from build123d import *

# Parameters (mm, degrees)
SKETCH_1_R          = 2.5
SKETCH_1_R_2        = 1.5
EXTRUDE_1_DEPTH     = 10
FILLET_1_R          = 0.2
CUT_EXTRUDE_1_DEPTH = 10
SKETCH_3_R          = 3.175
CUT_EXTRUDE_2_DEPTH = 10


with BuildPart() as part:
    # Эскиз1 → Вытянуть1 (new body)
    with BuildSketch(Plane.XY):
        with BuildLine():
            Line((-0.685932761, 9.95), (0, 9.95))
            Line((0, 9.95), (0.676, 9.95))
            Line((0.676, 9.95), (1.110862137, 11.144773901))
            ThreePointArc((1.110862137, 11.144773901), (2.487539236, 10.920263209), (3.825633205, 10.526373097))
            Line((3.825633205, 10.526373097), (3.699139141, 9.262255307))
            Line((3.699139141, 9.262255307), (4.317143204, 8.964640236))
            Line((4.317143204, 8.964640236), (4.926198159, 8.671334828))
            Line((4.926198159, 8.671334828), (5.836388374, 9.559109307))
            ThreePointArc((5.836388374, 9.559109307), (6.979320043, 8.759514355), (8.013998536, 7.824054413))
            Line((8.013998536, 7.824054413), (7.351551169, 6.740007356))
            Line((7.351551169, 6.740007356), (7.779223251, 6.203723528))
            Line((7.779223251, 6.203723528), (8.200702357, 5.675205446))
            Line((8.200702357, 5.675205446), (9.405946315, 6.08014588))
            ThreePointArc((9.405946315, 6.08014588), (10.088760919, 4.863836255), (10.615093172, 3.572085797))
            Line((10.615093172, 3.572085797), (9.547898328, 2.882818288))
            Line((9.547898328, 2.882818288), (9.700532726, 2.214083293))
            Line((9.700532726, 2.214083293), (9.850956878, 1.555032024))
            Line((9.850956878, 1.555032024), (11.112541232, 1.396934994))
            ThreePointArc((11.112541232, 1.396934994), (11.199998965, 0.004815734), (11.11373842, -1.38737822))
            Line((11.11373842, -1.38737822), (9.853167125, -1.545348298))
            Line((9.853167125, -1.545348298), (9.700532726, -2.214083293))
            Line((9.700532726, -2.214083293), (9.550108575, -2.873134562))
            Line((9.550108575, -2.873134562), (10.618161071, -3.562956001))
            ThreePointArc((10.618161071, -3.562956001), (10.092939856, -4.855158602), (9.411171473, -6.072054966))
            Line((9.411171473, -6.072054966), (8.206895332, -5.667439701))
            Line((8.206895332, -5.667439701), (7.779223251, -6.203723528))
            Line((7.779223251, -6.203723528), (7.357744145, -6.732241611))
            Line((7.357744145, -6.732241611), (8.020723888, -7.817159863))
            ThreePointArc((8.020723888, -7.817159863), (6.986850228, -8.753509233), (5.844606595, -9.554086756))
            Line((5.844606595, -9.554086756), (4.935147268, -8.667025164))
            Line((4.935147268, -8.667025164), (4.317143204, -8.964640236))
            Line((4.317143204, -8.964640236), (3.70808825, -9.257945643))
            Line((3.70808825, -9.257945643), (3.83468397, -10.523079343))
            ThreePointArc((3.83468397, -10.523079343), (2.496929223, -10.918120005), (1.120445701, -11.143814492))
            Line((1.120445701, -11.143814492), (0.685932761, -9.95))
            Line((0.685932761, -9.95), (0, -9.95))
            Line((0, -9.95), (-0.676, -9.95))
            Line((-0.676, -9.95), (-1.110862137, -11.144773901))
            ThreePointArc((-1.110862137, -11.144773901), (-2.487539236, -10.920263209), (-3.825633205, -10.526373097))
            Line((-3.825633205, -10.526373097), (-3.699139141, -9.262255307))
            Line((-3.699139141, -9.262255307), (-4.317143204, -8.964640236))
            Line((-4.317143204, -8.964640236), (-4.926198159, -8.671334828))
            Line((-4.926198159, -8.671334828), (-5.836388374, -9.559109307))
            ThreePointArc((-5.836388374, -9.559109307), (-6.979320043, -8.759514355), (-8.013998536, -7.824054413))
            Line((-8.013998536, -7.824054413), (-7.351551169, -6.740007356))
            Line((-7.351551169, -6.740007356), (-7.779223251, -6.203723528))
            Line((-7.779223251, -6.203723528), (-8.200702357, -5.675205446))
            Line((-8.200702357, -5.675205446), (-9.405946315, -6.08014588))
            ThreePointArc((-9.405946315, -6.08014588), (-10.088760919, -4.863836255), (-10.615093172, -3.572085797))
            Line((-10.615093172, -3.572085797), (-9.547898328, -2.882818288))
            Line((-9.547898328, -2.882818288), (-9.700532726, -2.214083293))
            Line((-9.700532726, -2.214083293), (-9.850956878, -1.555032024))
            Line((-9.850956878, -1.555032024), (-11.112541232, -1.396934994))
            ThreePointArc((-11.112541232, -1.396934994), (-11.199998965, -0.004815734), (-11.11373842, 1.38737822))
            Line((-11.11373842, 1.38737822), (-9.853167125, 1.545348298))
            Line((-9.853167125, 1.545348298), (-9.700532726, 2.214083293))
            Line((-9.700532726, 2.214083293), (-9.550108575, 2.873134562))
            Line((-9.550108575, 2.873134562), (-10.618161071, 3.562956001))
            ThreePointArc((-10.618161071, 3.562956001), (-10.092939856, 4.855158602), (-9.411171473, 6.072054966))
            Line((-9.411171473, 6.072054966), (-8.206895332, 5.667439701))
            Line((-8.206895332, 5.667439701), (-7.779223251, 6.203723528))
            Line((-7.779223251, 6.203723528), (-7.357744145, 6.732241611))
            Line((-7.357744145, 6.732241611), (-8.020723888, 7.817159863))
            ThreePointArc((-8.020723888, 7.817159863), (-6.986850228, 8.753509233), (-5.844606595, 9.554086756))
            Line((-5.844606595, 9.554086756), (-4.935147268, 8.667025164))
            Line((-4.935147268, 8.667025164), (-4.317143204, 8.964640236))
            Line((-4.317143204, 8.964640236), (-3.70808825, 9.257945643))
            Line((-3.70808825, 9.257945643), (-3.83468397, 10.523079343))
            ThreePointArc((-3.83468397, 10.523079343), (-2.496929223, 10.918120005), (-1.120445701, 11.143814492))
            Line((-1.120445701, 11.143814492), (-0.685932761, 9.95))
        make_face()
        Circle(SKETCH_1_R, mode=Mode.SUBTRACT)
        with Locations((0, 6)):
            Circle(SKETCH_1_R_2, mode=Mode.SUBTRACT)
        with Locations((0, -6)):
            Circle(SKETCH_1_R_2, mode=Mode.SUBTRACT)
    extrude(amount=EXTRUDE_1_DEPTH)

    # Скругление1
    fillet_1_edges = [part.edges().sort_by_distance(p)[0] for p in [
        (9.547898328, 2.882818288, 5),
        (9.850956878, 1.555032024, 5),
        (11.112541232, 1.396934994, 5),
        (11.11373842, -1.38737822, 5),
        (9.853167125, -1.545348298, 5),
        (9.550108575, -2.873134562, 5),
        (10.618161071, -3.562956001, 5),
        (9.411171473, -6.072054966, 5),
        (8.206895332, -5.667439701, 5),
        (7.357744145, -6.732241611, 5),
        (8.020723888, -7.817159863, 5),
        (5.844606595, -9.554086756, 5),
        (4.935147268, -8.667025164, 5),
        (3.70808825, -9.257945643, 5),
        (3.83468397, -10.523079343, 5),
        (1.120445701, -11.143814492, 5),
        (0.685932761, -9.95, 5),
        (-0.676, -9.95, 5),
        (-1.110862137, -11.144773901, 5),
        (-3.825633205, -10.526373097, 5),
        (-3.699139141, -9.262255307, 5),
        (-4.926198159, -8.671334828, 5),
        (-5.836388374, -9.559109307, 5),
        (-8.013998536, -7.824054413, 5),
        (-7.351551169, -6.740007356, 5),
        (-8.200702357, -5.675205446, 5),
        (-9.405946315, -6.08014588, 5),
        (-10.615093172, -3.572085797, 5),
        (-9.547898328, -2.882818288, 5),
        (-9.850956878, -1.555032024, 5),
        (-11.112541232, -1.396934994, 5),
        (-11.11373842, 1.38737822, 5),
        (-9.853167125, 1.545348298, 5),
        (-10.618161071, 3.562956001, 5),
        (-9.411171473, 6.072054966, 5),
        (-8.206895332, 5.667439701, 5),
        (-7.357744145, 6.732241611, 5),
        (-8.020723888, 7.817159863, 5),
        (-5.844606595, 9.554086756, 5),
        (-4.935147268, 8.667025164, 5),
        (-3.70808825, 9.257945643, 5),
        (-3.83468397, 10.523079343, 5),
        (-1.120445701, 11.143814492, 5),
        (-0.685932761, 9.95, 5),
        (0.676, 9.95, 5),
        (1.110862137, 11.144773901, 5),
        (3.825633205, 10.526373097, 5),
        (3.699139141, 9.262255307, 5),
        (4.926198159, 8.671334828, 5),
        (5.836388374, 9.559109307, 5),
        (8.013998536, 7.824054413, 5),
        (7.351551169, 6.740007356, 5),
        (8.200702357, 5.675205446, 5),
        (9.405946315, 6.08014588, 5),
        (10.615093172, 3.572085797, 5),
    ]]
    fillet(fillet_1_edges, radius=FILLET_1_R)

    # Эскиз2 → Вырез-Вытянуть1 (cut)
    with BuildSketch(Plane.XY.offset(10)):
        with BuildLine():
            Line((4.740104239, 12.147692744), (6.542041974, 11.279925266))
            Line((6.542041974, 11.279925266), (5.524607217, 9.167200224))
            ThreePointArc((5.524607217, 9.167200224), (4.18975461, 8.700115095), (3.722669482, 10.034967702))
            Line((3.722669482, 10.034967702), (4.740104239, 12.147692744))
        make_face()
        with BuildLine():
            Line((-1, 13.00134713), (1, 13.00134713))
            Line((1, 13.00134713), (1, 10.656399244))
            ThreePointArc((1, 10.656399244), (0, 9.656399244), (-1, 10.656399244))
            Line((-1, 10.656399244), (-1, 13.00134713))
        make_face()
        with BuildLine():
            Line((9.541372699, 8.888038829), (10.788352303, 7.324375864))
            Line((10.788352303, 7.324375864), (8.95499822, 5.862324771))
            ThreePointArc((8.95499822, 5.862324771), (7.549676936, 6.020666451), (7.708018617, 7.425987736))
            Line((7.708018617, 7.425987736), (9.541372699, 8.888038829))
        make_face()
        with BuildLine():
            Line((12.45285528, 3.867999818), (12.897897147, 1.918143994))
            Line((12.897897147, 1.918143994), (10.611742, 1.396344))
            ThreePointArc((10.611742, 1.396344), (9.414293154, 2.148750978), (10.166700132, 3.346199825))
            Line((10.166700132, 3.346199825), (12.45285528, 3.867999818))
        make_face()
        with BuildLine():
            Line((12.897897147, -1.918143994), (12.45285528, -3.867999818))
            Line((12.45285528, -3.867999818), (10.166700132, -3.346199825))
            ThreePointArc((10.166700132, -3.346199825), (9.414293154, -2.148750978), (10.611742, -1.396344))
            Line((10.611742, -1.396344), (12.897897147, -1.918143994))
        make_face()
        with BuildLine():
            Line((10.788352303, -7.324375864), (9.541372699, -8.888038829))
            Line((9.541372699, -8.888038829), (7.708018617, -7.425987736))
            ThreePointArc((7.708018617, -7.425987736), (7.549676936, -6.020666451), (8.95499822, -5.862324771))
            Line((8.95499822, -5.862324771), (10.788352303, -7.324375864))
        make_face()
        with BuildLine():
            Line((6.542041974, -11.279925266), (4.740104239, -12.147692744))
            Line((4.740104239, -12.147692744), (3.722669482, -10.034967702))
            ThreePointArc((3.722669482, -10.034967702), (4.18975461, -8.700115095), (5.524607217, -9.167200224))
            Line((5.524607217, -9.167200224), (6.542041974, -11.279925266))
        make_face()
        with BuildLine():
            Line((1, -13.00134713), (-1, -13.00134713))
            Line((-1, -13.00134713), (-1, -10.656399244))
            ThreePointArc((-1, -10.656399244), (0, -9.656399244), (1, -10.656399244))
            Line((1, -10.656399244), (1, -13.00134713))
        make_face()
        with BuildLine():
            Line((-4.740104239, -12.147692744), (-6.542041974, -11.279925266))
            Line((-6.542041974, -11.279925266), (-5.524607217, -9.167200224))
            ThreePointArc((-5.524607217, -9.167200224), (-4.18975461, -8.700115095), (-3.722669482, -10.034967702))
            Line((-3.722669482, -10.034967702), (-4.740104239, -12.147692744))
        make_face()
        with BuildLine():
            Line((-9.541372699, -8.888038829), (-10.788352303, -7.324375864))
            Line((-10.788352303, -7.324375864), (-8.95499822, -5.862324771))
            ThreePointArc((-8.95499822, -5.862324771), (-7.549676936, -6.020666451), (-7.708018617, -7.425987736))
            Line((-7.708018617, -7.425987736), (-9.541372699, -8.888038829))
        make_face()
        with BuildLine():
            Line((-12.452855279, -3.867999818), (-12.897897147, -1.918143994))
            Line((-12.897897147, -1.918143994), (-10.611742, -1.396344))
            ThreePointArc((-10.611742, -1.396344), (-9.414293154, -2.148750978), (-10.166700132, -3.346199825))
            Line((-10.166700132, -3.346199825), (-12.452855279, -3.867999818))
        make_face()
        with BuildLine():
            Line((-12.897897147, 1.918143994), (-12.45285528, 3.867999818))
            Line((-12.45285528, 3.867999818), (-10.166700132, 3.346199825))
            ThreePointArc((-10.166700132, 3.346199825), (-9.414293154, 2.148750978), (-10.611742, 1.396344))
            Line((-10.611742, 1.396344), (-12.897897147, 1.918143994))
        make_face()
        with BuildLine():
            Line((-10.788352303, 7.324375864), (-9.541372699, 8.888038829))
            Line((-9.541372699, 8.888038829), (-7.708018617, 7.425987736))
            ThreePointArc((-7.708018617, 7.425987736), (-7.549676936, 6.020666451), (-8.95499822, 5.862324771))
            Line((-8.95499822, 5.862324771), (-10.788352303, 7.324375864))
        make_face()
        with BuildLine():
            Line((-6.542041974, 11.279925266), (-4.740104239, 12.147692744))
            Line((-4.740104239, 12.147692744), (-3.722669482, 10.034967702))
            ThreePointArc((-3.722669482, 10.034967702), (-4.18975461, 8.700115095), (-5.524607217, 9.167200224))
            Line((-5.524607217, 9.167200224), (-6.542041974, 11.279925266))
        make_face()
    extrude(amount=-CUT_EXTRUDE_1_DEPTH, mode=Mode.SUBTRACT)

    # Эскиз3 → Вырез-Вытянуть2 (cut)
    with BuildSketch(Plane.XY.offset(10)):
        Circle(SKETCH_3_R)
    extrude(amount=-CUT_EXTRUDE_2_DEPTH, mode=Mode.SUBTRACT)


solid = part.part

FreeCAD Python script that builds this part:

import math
import FreeCAD as App
import Part
import Sketcher
from FreeCAD import Vector
Q = App.Units.Quantity


def edges_at(feature, points):
    """Names of the edges that pass closest to the given points."""
    edges = feature.Shape.Edges
    near = lambda p: min(range(len(edges)), key=lambda i: edges[i].distToShape(Part.Vertex(*p))[0])
    return sorted({f"Edge{near(p) + 1}" for p in points})

doc = App.newDocument("Part")
body = doc.addObject("PartDesign::Body", "Body")

sketch1 = body.newObject("Sketcher::SketchObject", "Sketch")
sketch1.AttachmentSupport = (doc.getObject("XY_Plane"), [""])
sketch1.MapMode = "FlatFace"
sketch1.addGeometry([
    Part.LineSegment(Vector(0.7, 9.9, 0), Vector(-0.7, 9.9, 0)),
    Part.LineSegment(Vector(-0.7, 9.9, 0), Vector(-1.1, 11.1, 0)),
    Part.ArcOfCircle(Part.Circle(Vector(0, 0, 0), Vector(0, 0, 1), 11.2), math.radians(95.74), math.radians(110.02)),
    Part.LineSegment(Vector(-3.8, 10.5, 0), Vector(-3.7, 9.3, 0)),
    Part.LineSegment(Vector(-3.7, 9.3, 0), Vector(-4.3, 9, 0)),
    Part.LineSegment(Vector(-4.3, 9, 0), Vector(-4.9, 8.7, 0)),
    Part.LineSegment(Vector(-4.9, 8.7, 0), Vector(-5.8, 9.6, 0)),
    Part.ArcOfCircle(Part.Circle(Vector(0, 0, 0), Vector(0, 0, 1), 11.2), math.radians(121.46), math.radians(135.74)),
    Part.LineSegment(Vector(-8, 7.8, 0), Vector(-7.4, 6.7, 0)),
    Part.LineSegment(Vector(-7.4, 6.7, 0), Vector(-7.8, 6.2, 0)),
    Part.LineSegment(Vector(-7.8, 6.2, 0), Vector(-8.2, 5.7, 0)),
    Part.LineSegment(Vector(-8.2, 5.7, 0), Vector(-9.4, 6.1, 0)),
    Part.ArcOfCircle(Part.Circle(Vector(0, 0, 0), Vector(0, 0, 1), 11.2), math.radians(147.17), math.radians(161.45)),
    Part.LineSegment(Vector(-10.6, 3.6, 0), Vector(-9.6, 2.9, 0)),
    Part.LineSegment(Vector(-9.6, 2.9, 0), Vector(-9.7, 2.2, 0)),
    Part.LineSegment(Vector(-9.7, 2.2, 0), Vector(-9.9, 1.5, 0)),
    Part.LineSegment(Vector(-9.9, 1.5, 0), Vector(-11.1, 1.4, 0)),
    Part.ArcOfCircle(Part.Circle(Vector(0, 0, 0), Vector(0, 0, 1), 11.2), math.radians(172.88), math.radians(187.16)),
    Part.LineSegment(Vector(-11.1, -1.4, 0), Vector(-9.9, -1.6, 0)),
    Part.LineSegment(Vector(-9.9, -1.6, 0), Vector(-9.7, -2.2, 0)),
    Part.LineSegment(Vector(-9.7, -2.2, 0), Vector(-9.5, -2.9, 0)),
    Part.LineSegment(Vector(-9.5, -2.9, 0), Vector(-10.6, -3.6, 0)),
    Part.ArcOfCircle(Part.Circle(Vector(0, 0, 0), Vector(0, 0, 1), 11.2), math.radians(-161.4), math.radians(-147.12)),
    Part.LineSegment(Vector(-9.4, -6.1, 0), Vector(-8.2, -5.7, 0)),
    Part.LineSegment(Vector(-8.2, -5.7, 0), Vector(-7.8, -6.2, 0)),
    Part.LineSegment(Vector(-7.8, -6.2, 0), Vector(-7.4, -6.7, 0)),
    Part.LineSegment(Vector(-7.4, -6.7, 0), Vector(-8, -7.8, 0)),
    Part.ArcOfCircle(Part.Circle(Vector(0, 0, 0), Vector(0, 0, 1), 11.2), math.radians(-135.69), math.radians(-121.41)),
    Part.LineSegment(Vector(-5.8, -9.6, 0), Vector(-4.9, -8.7, 0)),
    Part.LineSegment(Vector(-4.9, -8.7, 0), Vector(-4.3, -9, 0)),
    Part.LineSegment(Vector(-4.3, -9, 0), Vector(-3.7, -9.3, 0)),
    Part.LineSegment(Vector(-3.7, -9.3, 0), Vector(-3.8, -10.5, 0)),
    Part.ArcOfCircle(Part.Circle(Vector(0, 0, 0), Vector(0, 0, 1), 11.2), math.radians(-109.97), math.radians(-95.69)),
    Part.LineSegment(Vector(-1.1, -11.1, 0), Vector(-0.7, -9.9, 0)),
    Part.LineSegment(Vector(-0.7, -9.9, 0), Vector(0.7, -9.9, 0)),
    Part.LineSegment(Vector(0.7, -9.9, 0), Vector(1.1, -11.1, 0)),
    Part.ArcOfCircle(Part.Circle(Vector(0, 0, 0), Vector(0, 0, 1), 11.2), math.radians(-84.26), math.radians(-69.98)),
    Part.LineSegment(Vector(3.8, -10.5, 0), Vector(3.7, -9.3, 0)),
    Part.LineSegment(Vector(3.7, -9.3, 0), Vector(4.3, -9, 0)),
    Part.LineSegment(Vector(4.3, -9, 0), Vector(4.9, -8.7, 0)),
    Part.LineSegment(Vector(4.9, -8.7, 0), Vector(5.8, -9.6, 0)),
    Part.ArcOfCircle(Part.Circle(Vector(0, 0, 0), Vector(0, 0, 1), 11.2), math.radians(-58.54), math.radians(-44.26)),
    Part.LineSegment(Vector(8, -7.8, 0), Vector(7.4, -6.7, 0)),
    Part.LineSegment(Vector(7.4, -6.7, 0), Vector(7.8, -6.2, 0)),
    Part.LineSegment(Vector(7.8, -6.2, 0), Vector(8.2, -5.7, 0)),
    Part.LineSegment(Vector(8.2, -5.7, 0), Vector(9.4, -6.1, 0)),
    Part.ArcOfCircle(Part.Circle(Vector(0, 0, 0), Vector(0, 0, 1), 11.2), math.radians(-32.83), math.radians(-18.55)),
    Part.LineSegment(Vector(10.6, -3.6, 0), Vector(9.6, -2.9, 0)),
    Part.LineSegment(Vector(9.6, -2.9, 0), Vector(9.7, -2.2, 0)),
    Part.LineSegment(Vector(9.7, -2.2, 0), Vector(9.9, -1.5, 0)),
    Part.LineSegment(Vector(9.9, -1.5, 0), Vector(11.1, -1.4, 0)),
    Part.ArcOfCircle(Part.Circle(Vector(0, 0, 0), Vector(0, 0, 1), 11.2), math.radians(-7.12), math.radians(7.16)),
    Part.LineSegment(Vector(11.1, 1.4, 0), Vector(9.9, 1.6, 0)),
    Part.LineSegment(Vector(9.9, 1.6, 0), Vector(9.7, 2.2, 0)),
    Part.LineSegment(Vector(9.7, 2.2, 0), Vector(9.5, 2.9, 0)),
    Part.LineSegment(Vector(9.5, 2.9, 0), Vector(10.6, 3.6, 0)),
    Part.ArcOfCircle(Part.Circle(Vector(0, 0, 0), Vector(0, 0, 1), 11.2), math.radians(18.6), math.radians(32.88)),
    Part.LineSegment(Vector(9.4, 6.1, 0), Vector(8.2, 5.7, 0)),
    Part.LineSegment(Vector(8.2, 5.7, 0), Vector(7.8, 6.2, 0)),
    Part.LineSegment(Vector(7.8, 6.2, 0), Vector(7.4, 6.7, 0)),
    Part.LineSegment(Vector(7.4, 6.7, 0), Vector(8, 7.8, 0)),
    Part.ArcOfCircle(Part.Circle(Vector(0, 0, 0), Vector(0, 0, 1), 11.2), math.radians(44.31), math.radians(58.59)),
    Part.LineSegment(Vector(5.8, 9.6, 0), Vector(4.9, 8.7, 0)),
    Part.LineSegment(Vector(4.9, 8.7, 0), Vector(4.3, 9, 0)),
    Part.LineSegment(Vector(4.3, 9, 0), Vector(3.7, 9.3, 0)),
    Part.LineSegment(Vector(3.7, 9.3, 0), Vector(3.8, 10.5, 0)),
    Part.ArcOfCircle(Part.Circle(Vector(0, 0, 0), Vector(0, 0, 1), 11.2), math.radians(70.03), math.radians(84.31)),
    Part.LineSegment(Vector(1.1, 11.1, 0), Vector(0.7, 9.9, 0)),
    Part.Circle(Vector(0, -6, 0), Vector(0, 0, 1), 1.5),
    Part.Circle(Vector(0, 0, 0), Vector(0, 0, 1), 2.5),
    Part.Circle(Vector(0, 6, 0), Vector(0, 0, 1), 1.5),
], False)
sketch1.addConstraint([
    Sketcher.Constraint("Coincident", 0, 2, 1, 1),
    Sketcher.Constraint("Coincident", 1, 2, 2, 1),
    Sketcher.Constraint("Coincident", 2, 2, 3, 1),
    Sketcher.Constraint("Coincident", 3, 2, 4, 1),
    Sketcher.Constraint("Coincident", 4, 2, 5, 1),
    Sketcher.Constraint("Coincident", 5, 2, 6, 1),
    Sketcher.Constraint("Coincident", 6, 2, 7, 1),
    Sketcher.Constraint("Coincident", 7, 2, 8, 1),
    Sketcher.Constraint("Coincident", 8, 2, 9, 1),
    Sketcher.Constraint("Coincident", 9, 2, 10, 1),
    Sketcher.Constraint("Coincident", 10, 2, 11, 1),
    Sketcher.Constraint("Coincident", 11, 2, 12, 1),
    Sketcher.Constraint("Coincident", 12, 2, 13, 1),
    Sketcher.Constraint("Coincident", 13, 2, 14, 1),
    Sketcher.Constraint("Coincident", 14, 2, 15, 1),
    Sketcher.Constraint("Coincident", 15, 2, 16, 1),
    Sketcher.Constraint("Coincident", 16, 2, 17, 1),
    Sketcher.Constraint("Coincident", 17, 2, 18, 1),
    Sketcher.Constraint("Coincident", 18, 2, 19, 1),
    Sketcher.Constraint("Coincident", 19, 2, 20, 1),
    Sketcher.Constraint("Coincident", 20, 2, 21, 1),
    Sketcher.Constraint("Coincident", 21, 2, 22, 1),
    Sketcher.Constraint("Coincident", 22, 2, 23, 1),
    Sketcher.Constraint("Coincident", 23, 2, 24, 1),
    Sketcher.Constraint("Coincident", 24, 2, 25, 1),
    Sketcher.Constraint("Coincident", 25, 2, 26, 1),
    Sketcher.Constraint("Coincident", 26, 2, 27, 1),
    Sketcher.Constraint("Coincident", 27, 2, 28, 1),
    Sketcher.Constraint("Coincident", 28, 2, 29, 1),
    Sketcher.Constraint("Coincident", 29, 2, 30, 1),
    Sketcher.Constraint("Coincident", 30, 2, 31, 1),
    Sketcher.Constraint("Coincident", 31, 2, 32, 1),
    Sketcher.Constraint("Coincident", 32, 2, 33, 1),
    Sketcher.Constraint("Coincident", 33, 2, 34, 1),
    Sketcher.Constraint("Coincident", 34, 2, 35, 1),
    Sketcher.Constraint("Coincident", 35, 2, 36, 1),
    Sketcher.Constraint("Coincident", 36, 2, 37, 1),
    Sketcher.Constraint("Coincident", 37, 2, 38, 1),
    Sketcher.Constraint("Coincident", 38, 2, 39, 1),
    Sketcher.Constraint("Coincident", 39, 2, 40, 1),
    Sketcher.Constraint("Coincident", 40, 2, 41, 1),
    Sketcher.Constraint("Coincident", 41, 2, 42, 1),
    Sketcher.Constraint("Coincident", 42, 2, 43, 1),
    Sketcher.Constraint("Coincident", 43, 2, 44, 1),
    Sketcher.Constraint("Coincident", 44, 2, 45, 1),
    Sketcher.Constraint("Coincident", 45, 2, 46, 1),
    Sketcher.Constraint("Coincident", 46, 2, 47, 1),
    Sketcher.Constraint("Coincident", 47, 2, 48, 1),
    Sketcher.Constraint("Coincident", 48, 2, 49, 1),
    Sketcher.Constraint("Coincident", 49, 2, 50, 1),
    Sketcher.Constraint("Coincident", 50, 2, 51, 1),
    Sketcher.Constraint("Coincident", 51, 2, 52, 1),
    Sketcher.Constraint("Coincident", 52, 2, 53, 1),
    Sketcher.Constraint("Coincident", 53, 2, 54, 1),
    Sketcher.Constraint("Coincident", 54, 2, 55, 1),
    Sketcher.Constraint("Coincident", 55, 2, 56, 1),
    Sketcher.Constraint("Coincident", 56, 2, 57, 1),
    Sketcher.Constraint("Coincident", 57, 2, 58, 1),
    Sketcher.Constraint("Coincident", 58, 2, 59, 1),
    Sketcher.Constraint("Coincident", 59, 2, 60, 1),
    Sketcher.Constraint("Coincident", 60, 2, 61, 1),
    Sketcher.Constraint("Coincident", 61, 2, 62, 1),
    Sketcher.Constraint("Coincident", 62, 2, 63, 1),
    Sketcher.Constraint("Coincident", 63, 2, 64, 1),
    Sketcher.Constraint("Coincident", 64, 2, 65, 1),
    Sketcher.Constraint("Coincident", 65, 2, 66, 1),
    Sketcher.Constraint("Coincident", 66, 2, 67, 1),
    Sketcher.Constraint("Coincident", 67, 2, 0, 1),
    Sketcher.Constraint("Horizontal", 0),
    Sketcher.Constraint("Horizontal", 34),
    Sketcher.Constraint("Coincident", 2, 3, -1, 1),
    Sketcher.Constraint("Coincident", 7, 3, -1, 1),
    Sketcher.Constraint("Coincident", 12, 3, -1, 1),
    Sketcher.Constraint("Coincident", 17, 3, -1, 1),
    Sketcher.Constraint("Coincident", 22, 3, -1, 1),
    Sketcher.Constraint("Coincident", 27, 3, -1, 1),
    Sketcher.Constraint("Coincident", 32, 3, -1, 1),
    Sketcher.Constraint("Coincident", 36, 3, -1, 1),
    Sketcher.Constraint("Coincident", 41, 3, -1, 1),
    Sketcher.Constraint("Coincident", 46, 3, -1, 1),
    Sketcher.Constraint("Coincident", 51, 3, -1, 1),
    Sketcher.Constraint("Coincident", 56, 3, -1, 1),
    Sketcher.Constraint("Coincident", 61, 3, -1, 1),
    Sketcher.Constraint("Coincident", 66, 3, -1, 1),
    Sketcher.Constraint("Coincident", 69, 3, -1, 1),
    Sketcher.Constraint("Equal", 2, 7),
    Sketcher.Constraint("Equal", 7, 12),
    Sketcher.Constraint("Equal", 12, 17),
    Sketcher.Constraint("Equal", 17, 22),
    Sketcher.Constraint("Equal", 22, 27),
    Sketcher.Constraint("Equal", 27, 32),
    Sketcher.Constraint("Equal", 32, 36),
    Sketcher.Constraint("Equal", 36, 41),
    Sketcher.Constraint("Equal", 41, 46),
    Sketcher.Constraint("Equal", 46, 51),
    Sketcher.Constraint("Equal", 51, 56),
    Sketcher.Constraint("Equal", 56, 61),
    Sketcher.Constraint("Equal", 61, 66),
    Sketcher.Constraint("Equal", 68, 70),
    Sketcher.Constraint("Symmetric", 68, 3, 70, 3, -1, 1),
    Sketcher.Constraint("Symmetric", 0, 2, 34, 2, -1, 1),
    Sketcher.Constraint("Symmetric", 3, 2, 37, 2, -1, 1),
    Sketcher.Constraint("Symmetric", 4, 2, 38, 2, -1, 1),
    Sketcher.Constraint("Symmetric", 5, 2, 39, 2, -1, 1),
    Sketcher.Constraint("Symmetric", 8, 2, 42, 2, -1, 1),
    Sketcher.Constraint("Symmetric", 9, 2, 43, 2, -1, 1),
    Sketcher.Constraint("Symmetric", 10, 2, 44, 2, -1, 1),
    Sketcher.Constraint("Symmetric", 13, 2, 47, 2, -1, 1),
    Sketcher.Constraint("Symmetric", 14, 2, 48, 2, -1, 1),
    Sketcher.Constraint("Symmetric", 15, 2, 49, 2, -1, 1),
    Sketcher.Constraint("Symmetric", 18, 2, 52, 2, -1, 1),
    Sketcher.Constraint("Symmetric", 19, 2, 53, 2, -1, 1),
    Sketcher.Constraint("Symmetric", 20, 2, 54, 2, -1, 1),
    Sketcher.Constraint("Symmetric", 23, 2, 57, 2, -1, 1),
    Sketcher.Constraint("Symmetric", 24, 2, 58, 2, -1, 1),
    Sketcher.Constraint("Symmetric", 25, 2, 59, 2, -1, 1),
    Sketcher.Constraint("Symmetric", 28, 2, 62, 2, -1, 1),
    Sketcher.Constraint("Symmetric", 29, 2, 63, 2, -1, 1),
    Sketcher.Constraint("Symmetric", 30, 2, 64, 2, -1, 1),
    Sketcher.Constraint("Symmetric", 29, 2, 38, 2, -2),
    Sketcher.Constraint("Symmetric", 24, 2, 43, 2, -2),
    Sketcher.Constraint("Symmetric", 19, 2, 48, 2, -2),
    Sketcher.Constraint("PointOnObject", 68, 3, -2),
    Sketcher.Constraint("Parallel", 4, 5),
    Sketcher.Constraint("Parallel", 9, 10),
    Sketcher.Constraint("Parallel", 14, 15),
    Sketcher.Constraint("Parallel", 19, 20),
    Sketcher.Constraint("Parallel", 24, 25),
    Sketcher.Constraint("Parallel", 29, 30),
    Sketcher.Constraint("Parallel", 1, 35),
    Sketcher.Constraint("Parallel", 3, 37),
    Sketcher.Constraint("Parallel", 6, 40),
    Sketcher.Constraint("Parallel", 8, 42),
    Sketcher.Constraint("Parallel", 11, 45),
    Sketcher.Constraint("Parallel", 13, 47),
    Sketcher.Constraint("Parallel", 16, 50),
    Sketcher.Constraint("Parallel", 18, 52),
    Sketcher.Constraint("Parallel", 21, 55),
    Sketcher.Constraint("Parallel", 23, 57),
    Sketcher.Constraint("Parallel", 26, 60),
    Sketcher.Constraint("Parallel", 28, 62),
    Sketcher.Constraint("Parallel", 31, 65),
    Sketcher.Constraint("Parallel", 33, 67),
    Sketcher.Constraint("Equal", 0, 34),
    Sketcher.Constraint("Equal", 1, 6),
    Sketcher.Constraint("Equal", 3, 8),
    Sketcher.Constraint("Equal", 4, 9),
    Sketcher.Constraint("Equal", 5, 10),
    Sketcher.Constraint("Equal", 6, 11),
    Sketcher.Constraint("Equal", 8, 13),
    Sketcher.Constraint("Equal", 9, 14),
    Sketcher.Constraint("Equal", 10, 15),
    Sketcher.Constraint("Equal", 11, 16),
    Sketcher.Constraint("Equal", 13, 18),
    Sketcher.Constraint("Equal", 14, 19),
    Sketcher.Constraint("Equal", 15, 20),
    Sketcher.Constraint("Equal", 16, 21),
    Sketcher.Constraint("Equal", 18, 23),
    Sketcher.Constraint("Equal", 19, 24),
    Sketcher.Constraint("Equal", 20, 25),
    Sketcher.Constraint("Equal", 21, 26),
    Sketcher.Constraint("Equal", 23, 28),
    Sketcher.Constraint("Equal", 24, 29),
    Sketcher.Constraint("Equal", 25, 30),
    Sketcher.Constraint("Equal", 26, 31),
    Sketcher.Constraint("Equal", 28, 33),
    Sketcher.Constraint("Diameter", 68, 3.0),
    Sketcher.Constraint("Diameter", 69, 5.0),
    Sketcher.Constraint("Radius", 2, 11.2),
    Sketcher.Constraint("Angle", 1, Q("110 deg")),
    Sketcher.Constraint("Angle", 33, Q("70 deg")),
    Sketcher.Constraint("DistanceY", 68, 3, -1, 1, 6.0),
    Sketcher.Constraint("DistanceY", -1, 1, 0, 2, 9.95),
    Sketcher.Constraint("Distance", 4, 0.676),
    Sketcher.Constraint("DistanceX", 26, 2, -1, 1, 8.013999),
    Sketcher.Constraint("DistanceX", 33, 2, -1, 1, 0.676),
    Sketcher.Constraint("DistanceX", 20, 2, -1, 1, 9.547898),
    Sketcher.Constraint("DistanceX", 28, 2, -1, 1, 4.926198),
    Sketcher.Constraint("Distance", 1, 1.270431),
    Sketcher.Constraint("DistanceY", -1, 1, 2, 2, 10.523079),
    Sketcher.Constraint("DistanceX", 3, 2, -1, 1, 3.708088),
    Sketcher.Constraint("DistanceY", -1, 1, 4, 2, 8.96464),
    Sketcher.Constraint("DistanceY", -1, 1, 7, 2, 7.81716),
    Sketcher.Constraint("DistanceY", -1, 1, 8, 2, 6.732242),
    Sketcher.Constraint("DistanceY", -1, 1, 10, 2, 5.66744),
    Sketcher.Constraint("DistanceX", 11, 2, -1, 1, 9.411171),
    Sketcher.Constraint("DistanceX", 12, 2, -1, 1, 10.618161),
    Sketcher.Constraint("DistanceX", 13, 2, -1, 1, 9.550109),
    Sketcher.Constraint("DistanceY", -1, 1, 15, 2, 1.545348),
])
pad1 = body.newObject("PartDesign::Pad", "Pad")
pad1.Profile = sketch1
pad1.Length = 10
doc.recompute()

fillet = body.newObject("PartDesign::Fillet", "Fillet")
fillet.Base = (pad1, edges_at(pad1, [
    (9.548, 2.883, 5),
    (9.851, 1.555, 5),
    (11.113, 1.397, 5),
    (11.114, -1.387, 5),
    (9.853, -1.545, 5),
    (9.55, -2.873, 5),
    (10.618, -3.563, 5),
    (9.411, -6.072, 5),
    (8.207, -5.667, 5),
    (7.358, -6.732, 5),
    (8.021, -7.817, 5),
    (5.845, -9.554, 5),
    (4.935, -8.667, 5),
    (3.708, -9.258, 5),
    (3.835, -10.523, 5),
    (1.12, -11.144, 5),
    (0.686, -9.95, 5),
    (-0.676, -9.95, 5),
    (-1.111, -11.145, 5),
    (-3.826, -10.526, 5),
    (-3.699, -9.262, 5),
    (-4.926, -8.671, 5),
    (-5.836, -9.559, 5),
    (-8.014, -7.824, 5),
    (-7.352, -6.74, 5),
    (-8.201, -5.675, 5),
    (-9.406, -6.08, 5),
    (-10.615, -3.572, 5),
    (-9.548, -2.883, 5),
    (-9.851, -1.555, 5),
    (-11.113, -1.397, 5),
    (-11.114, 1.387, 5),
    (-9.853, 1.545, 5),
    (-10.618, 3.563, 5),
    (-9.411, 6.072, 5),
    (-8.207, 5.667, 5),
    (-7.358, 6.732, 5),
    (-8.021, 7.817, 5),
    (-5.845, 9.554, 5),
    (-4.935, 8.667, 5),
    (-3.708, 9.258, 5),
    (-3.835, 10.523, 5),
    (-1.12, 11.144, 5),
    (-0.686, 9.95, 5),
    (0.676, 9.95, 5),
    (1.111, 11.145, 5),
    (3.826, 10.526, 5),
    (3.699, 9.262, 5),
    (4.926, 8.671, 5),
    (5.836, 9.559, 5),
    (8.014, 7.824, 5),
    (7.352, 6.74, 5),
    (8.201, 5.675, 5),
    (9.406, 6.08, 5),
    (10.615, 3.572, 5),
]))
fillet.Radius = 0.2

sketch2 = body.newObject("Sketcher::SketchObject", "Sketch001")
sketch2.AttachmentSupport = (doc.getObject("XY_Plane"), [""])
sketch2.MapMode = "FlatFace"
sketch2.AttachmentOffset = App.Placement(Vector(0, 0, 10), App.Rotation())
sketch2.addGeometry([
    Part.LineSegment(Vector(6.5, 11.3, 0), Vector(4.7, 12.1, 0)),
    Part.LineSegment(Vector(4.7, 12.1, 0), Vector(3.7, 10, 0)),
    Part.ArcOfCircle(Part.Circle(Vector(4.6, 9.6, 0), Vector(0, 0, 1), 1), math.radians(154), math.radians(334)),
    Part.LineSegment(Vector(5.5, 9.2, 0), Vector(6.5, 11.3, 0)),
    Part.LineSegment(Vector(1, 13, 0), Vector(-1, 13, 0)),
    Part.LineSegment(Vector(-1, 13, 0), Vector(-1, 10.7, 0)),
    Part.ArcOfCircle(Part.Circle(Vector(0, 10.7, 0), Vector(0, 0, 1), 1), math.radians(180), math.radians(360)),
    Part.LineSegment(Vector(1, 10.7, 0), Vector(1, 13, 0)),
    Part.LineSegment(Vector(10.8, 7.3, 0), Vector(9.5, 8.9, 0)),
    Part.LineSegment(Vector(9.5, 8.9, 0), Vector(7.7, 7.4, 0)),
    Part.ArcOfCircle(Part.Circle(Vector(8.3, 6.6, 0), Vector(0, 0, 1), 1), math.radians(129), math.radians(309)),
    Part.LineSegment(Vector(9, 5.9, 0), Vector(10.8, 7.3, 0)),
    Part.LineSegment(Vector(12.9, 1.9, 0), Vector(12.5, 3.9, 0)),
    Part.LineSegment(Vector(12.5, 3.9, 0), Vector(10.2, 3.3, 0)),
    Part.ArcOfCircle(Part.Circle(Vector(10.4, 2.4, 0), Vector(0, 0, 1), 1), math.radians(103), math.radians(283)),
    Part.LineSegment(Vector(10.6, 1.4, 0), Vector(12.9, 1.9, 0)),
    Part.LineSegment(Vector(12.5, -3.9, 0), Vector(12.9, -1.9, 0)),
    Part.LineSegment(Vector(12.9, -1.9, 0), Vector(10.6, -1.4, 0)),
    Part.ArcOfCircle(Part.Circle(Vector(10.4, -2.4, 0), Vector(0, 0, 1), 1), math.radians(77), math.radians(257)),
    Part.LineSegment(Vector(10.2, -3.3, 0), Vector(12.5, -3.9, 0)),
    Part.LineSegment(Vector(9.5, -8.9, 0), Vector(10.8, -7.3, 0)),
    Part.LineSegment(Vector(10.8, -7.3, 0), Vector(9, -5.9, 0)),
    Part.ArcOfCircle(Part.Circle(Vector(8.3, -6.6, 0), Vector(0, 0, 1), 1), math.radians(51), math.radians(231)),
    Part.LineSegment(Vector(7.7, -7.4, 0), Vector(9.5, -8.9, 0)),
    Part.LineSegment(Vector(4.7, -12.1, 0), Vector(6.5, -11.3, 0)),
    Part.LineSegment(Vector(6.5, -11.3, 0), Vector(5.5, -9.2, 0)),
    Part.ArcOfCircle(Part.Circle(Vector(4.6, -9.6, 0), Vector(0, 0, 1), 1), math.radians(26), math.radians(206)),
    Part.LineSegment(Vector(3.7, -10, 0), Vector(4.7, -12.1, 0)),
    Part.LineSegment(Vector(-1, -13, 0), Vector(1, -13, 0)),
    Part.LineSegment(Vector(1, -13, 0), Vector(1, -10.7, 0)),
    Part.ArcOfCircle(Part.Circle(Vector(0, -10.7, 0), Vector(0, 0, 1), 1), math.radians(0), math.radians(180)),
    Part.LineSegment(Vector(-1, -10.7, 0), Vector(-1, -13, 0)),
    Part.LineSegment(Vector(-6.5, -11.3, 0), Vector(-4.7, -12.1, 0)),
    Part.LineSegment(Vector(-4.7, -12.1, 0), Vector(-3.7, -10, 0)),
    Part.ArcOfCircle(Part.Circle(Vector(-4.6, -9.6, 0), Vector(0, 0, 1), 1), math.radians(-26), math.radians(154)),
    Part.LineSegment(Vector(-5.5, -9.2, 0), Vector(-6.5, -11.3, 0)),
    Part.LineSegment(Vector(-10.8, -7.3, 0), Vector(-9.5, -8.9, 0)),
    Part.LineSegment(Vector(-9.5, -8.9, 0), Vector(-7.7, -7.4, 0)),
    Part.ArcOfCircle(Part.Circle(Vector(-8.3, -6.6, 0), Vector(0, 0, 1), 1), math.radians(-51), math.radians(129)),
    Part.LineSegment(Vector(-9, -5.9, 0), Vector(-10.8, -7.3, 0)),
    Part.LineSegment(Vector(-12.9, -1.9, 0), Vector(-12.5, -3.9, 0)),
    Part.LineSegment(Vector(-12.5, -3.9, 0), Vector(-10.2, -3.3, 0)),
    Part.ArcOfCircle(Part.Circle(Vector(-10.4, -2.4, 0), Vector(0, 0, 1), 1), math.radians(-77), math.radians(103)),
    Part.LineSegment(Vector(-10.6, -1.4, 0), Vector(-12.9, -1.9, 0)),
    Part.LineSegment(Vector(-12.5, 3.9, 0), Vector(-12.9, 1.9, 0)),
    Part.LineSegment(Vector(-12.9, 1.9, 0), Vector(-10.6, 1.4, 0)),
    Part.ArcOfCircle(Part.Circle(Vector(-10.4, 2.4, 0), Vector(0, 0, 1), 1), math.radians(-103), math.radians(77)),
    Part.LineSegment(Vector(-10.2, 3.3, 0), Vector(-12.5, 3.9, 0)),
    Part.LineSegment(Vector(-9.5, 8.9, 0), Vector(-10.8, 7.3, 0)),
    Part.LineSegment(Vector(-10.8, 7.3, 0), Vector(-9, 5.9, 0)),
    Part.ArcOfCircle(Part.Circle(Vector(-8.3, 6.6, 0), Vector(0, 0, 1), 1), math.radians(-129), math.radians(51)),
    Part.LineSegment(Vector(-7.7, 7.4, 0), Vector(-9.5, 8.9, 0)),
    Part.LineSegment(Vector(-4.7, 12.1, 0), Vector(-6.5, 11.3, 0)),
    Part.LineSegment(Vector(-6.5, 11.3, 0), Vector(-5.5, 9.2, 0)),
    Part.ArcOfCircle(Part.Circle(Vector(-4.6, 9.6, 0), Vector(0, 0, 1), 1), math.radians(-154), math.radians(26)),
    Part.LineSegment(Vector(-3.7, 10, 0), Vector(-4.7, 12.1, 0)),
], False)
sketch2.addConstraint([
    Sketcher.Constraint("Coincident", 0, 2, 1, 1),
    Sketcher.Constraint("Tangent", 1, 2, 2, 1),
    Sketcher.Constraint("Tangent", 2, 2, 3, 1),
    Sketcher.Constraint("Coincident", 3, 2, 0, 1),
    Sketcher.Constraint("Coincident", 4, 2, 5, 1),
    Sketcher.Constraint("Tangent", 5, 2, 6, 1),
    Sketcher.Constraint("Tangent", 6, 2, 7, 1),
    Sketcher.Constraint("Coincident", 7, 2, 4, 1),
    Sketcher.Constraint("Coincident", 8, 2, 9, 1),
    Sketcher.Constraint("Tangent", 9, 2, 10, 1),
    Sketcher.Constraint("Tangent", 10, 2, 11, 1),
    Sketcher.Constraint("Coincident", 11, 2, 8, 1),
    Sketcher.Constraint("Coincident", 12, 2, 13, 1),
    Sketcher.Constraint("Tangent", 13, 2, 14, 1),
    Sketcher.Constraint("Tangent", 14, 2, 15, 1),
    Sketcher.Constraint("Coincident", 15, 2, 12, 1),
    Sketcher.Constraint("Coincident", 16, 2, 17, 1),
    Sketcher.Constraint("Tangent", 17, 2, 18, 1),
    Sketcher.Constraint("Tangent", 18, 2, 19, 1),
    Sketcher.Constraint("Coincident", 19, 2, 16, 1),
    Sketcher.Constraint("Coincident", 20, 2, 21, 1),
    Sketcher.Constraint("Tangent", 21, 2, 22, 1),
    Sketcher.Constraint("Tangent", 22, 2, 23, 1),
    Sketcher.Constraint("Coincident", 23, 2, 20, 1),
    Sketcher.Constraint("Coincident", 24, 2, 25, 1),
    Sketcher.Constraint("Tangent", 25, 2, 26, 1),
    Sketcher.Constraint("Tangent", 26, 2, 27, 1),
    Sketcher.Constraint("Coincident", 27, 2, 24, 1),
    Sketcher.Constraint("Coincident", 28, 2, 29, 1),
    Sketcher.Constraint("Tangent", 29, 2, 30, 1),
    Sketcher.Constraint("Tangent", 30, 2, 31, 1),
    Sketcher.Constraint("Coincident", 31, 2, 28, 1),
    Sketcher.Constraint("Coincident", 32, 2, 33, 1),
    Sketcher.Constraint("Tangent", 33, 2, 34, 1),
    Sketcher.Constraint("Tangent", 34, 2, 35, 1),
    Sketcher.Constraint("Coincident", 35, 2, 32, 1),
    Sketcher.Constraint("Coincident", 36, 2, 37, 1),
    Sketcher.Constraint("Tangent", 37, 2, 38, 1),
    Sketcher.Constraint("Tangent", 38, 2, 39, 1),
    Sketcher.Constraint("Coincident", 39, 2, 36, 1),
    Sketcher.Constraint("Coincident", 40, 2, 41, 1),
    Sketcher.Constraint("Tangent", 41, 2, 42, 1),
    Sketcher.Constraint("Tangent", 42, 2, 43, 1),
    Sketcher.Constraint("Coincident", 43, 2, 40, 1),
    Sketcher.Constraint("Coincident", 44, 2, 45, 1),
    Sketcher.Constraint("Tangent", 45, 2, 46, 1),
    Sketcher.Constraint("Tangent", 46, 2, 47, 1),
    Sketcher.Constraint("Coincident", 47, 2, 44, 1),
    Sketcher.Constraint("Coincident", 48, 2, 49, 1),
    Sketcher.Constraint("Tangent", 49, 2, 50, 1),
    Sketcher.Constraint("Tangent", 50, 2, 51, 1),
    Sketcher.Constraint("Coincident", 51, 2, 48, 1),
    Sketcher.Constraint("Coincident", 52, 2, 53, 1),
    Sketcher.Constraint("Tangent", 53, 2, 54, 1),
    Sketcher.Constraint("Tangent", 54, 2, 55, 1),
    Sketcher.Constraint("Coincident", 55, 2, 52, 1),
    Sketcher.Constraint("Horizontal", 4),
    Sketcher.Constraint("Vertical", 5),
    Sketcher.Constraint("Vertical", 7),
    Sketcher.Constraint("Horizontal", 28),
    Sketcher.Constraint("Vertical", 29),
    Sketcher.Constraint("Vertical", 31),
    Sketcher.Constraint("Equal", 2, 6),
    Sketcher.Constraint("Equal", 6, 10),
    Sketcher.Constraint("Equal", 10, 14),
    Sketcher.Constraint("Equal", 14, 18),
    Sketcher.Constraint("Equal", 18, 22),
    Sketcher.Constraint("Equal", 22, 26),
    Sketcher.Constraint("Equal", 26, 30),
    Sketcher.Constraint("Equal", 30, 34),
    Sketcher.Constraint("Equal", 34, 38),
    Sketcher.Constraint("Equal", 38, 42),
    Sketcher.Constraint("Equal", 42, 46),
    Sketcher.Constraint("Equal", 46, 50),
    Sketcher.Constraint("Equal", 50, 54),
    Sketcher.Constraint("Symmetric", 6, 3, 30, 3, -1, 1),
    Sketcher.Constraint("Symmetric", 2, 3, 34, 3, -1, 1),
    Sketcher.Constraint("Symmetric", 10, 3, 38, 3, -1, 1),
    Sketcher.Constraint("Symmetric", 14, 3, 42, 3, -1, 1),
    Sketcher.Constraint("Symmetric", 18, 3, 46, 3, -1, 1),
    Sketcher.Constraint("Symmetric", 22, 3, 50, 3, -1, 1),
    Sketcher.Constraint("Symmetric", 26, 3, 54, 3, -1, 1),
    Sketcher.Constraint("Symmetric", 0, 2, 32, 2, -1, 1),
    Sketcher.Constraint("Symmetric", 3, 2, 35, 2, -1, 1),
    Sketcher.Constraint("Symmetric", 8, 2, 36, 2, -1, 1),
    Sketcher.Constraint("Symmetric", 11, 2, 39, 2, -1, 1),
    Sketcher.Constraint("Symmetric", 12, 2, 40, 2, -1, 1),
    Sketcher.Constraint("Symmetric", 15, 2, 43, 2, -1, 1),
    Sketcher.Constraint("Symmetric", 16, 2, 44, 2, -1, 1),
    Sketcher.Constraint("Symmetric", 19, 2, 47, 2, -1, 1),
    Sketcher.Constraint("Symmetric", 20, 2, 48, 2, -1, 1),
    Sketcher.Constraint("Symmetric", 23, 2, 51, 2, -1, 1),
    Sketcher.Constraint("Symmetric", 24, 2, 52, 2, -1, 1),
    Sketcher.Constraint("Symmetric", 27, 2, 55, 2, -1, 1),
    Sketcher.Constraint("Symmetric", 26, 3, 34, 3, -2),
    Sketcher.Constraint("Symmetric", 22, 3, 38, 3, -2),
    Sketcher.Constraint("Symmetric", 18, 3, 42, 3, -2),
    Sketcher.Constraint("Symmetric", 27, 2, 32, 2, -2),
    Sketcher.Constraint("Symmetric", 24, 2, 35, 2, -2),
    Sketcher.Constraint("Symmetric", 23, 2, 36, 2, -2),
    Sketcher.Constraint("Symmetric", 20, 2, 39, 2, -2),
    Sketcher.Constraint("Symmetric", 19, 2, 40, 2, -2),
    Sketcher.Constraint("Symmetric", 16, 2, 43, 2, -2),
    Sketcher.Constraint("Symmetric", 7, 2, 28, 2, -1),
    Sketcher.Constraint("Perpendicular", 0, 1),
    Sketcher.Constraint("Parallel", 1, 3),
    Sketcher.Constraint("Perpendicular", 8, 9),
    Sketcher.Constraint("Parallel", 9, 11),
    Sketcher.Constraint("Perpendicular", 12, 13),
    Sketcher.Constraint("Parallel", 13, 15),
    Sketcher.Constraint("Equal", 3, 9),
    Sketcher.Constraint("Equal", 11, 13),
    Sketcher.Constraint("Radius", 2, 1.0),
    Sketcher.Constraint("DistanceX", -1, 1, 10, 2, 8.954998),
    Sketcher.Constraint("DistanceY", -1, 1, 12, 2, 3.868),
    Sketcher.Constraint("DistanceY", -1, 1, 6, 3, 10.656399),
    Sketcher.Constraint("DistanceY", -1, 1, 2, 2, 9.1672),
    Sketcher.Constraint("DistanceX", -1, 1, 13, 2, 10.1667),
    Sketcher.Constraint("DistanceY", -1, 1, 13, 2, 3.3462),
    Sketcher.Constraint("DistanceY", 5, 2, 5, 1, 2.344948),
    Sketcher.Constraint("DistanceX", -1, 1, 2, 3, 4.623638),
    Sketcher.Constraint("DistanceX", -1, 1, 10, 3, 8.331508),
    Sketcher.Constraint("DistanceX", -1, 1, 14, 3, 10.389221),
    Sketcher.Constraint("DistanceX", -1, 1, 1, 2, 3.722669),
    Sketcher.Constraint("DistanceY", -1, 1, 8, 2, 8.888039),
])
pocket1 = body.newObject("PartDesign::Pocket", "Pocket")
pocket1.Profile = sketch2
pocket1.Length = 10

sketch3 = body.newObject("Sketcher::SketchObject", "Sketch002")
sketch3.AttachmentSupport = (doc.getObject("XY_Plane"), [""])
sketch3.MapMode = "FlatFace"
sketch3.AttachmentOffset = App.Placement(Vector(0, 0, 10), App.Rotation())
sketch3.addGeometry(Part.Circle(Vector(0, 0, 0), Vector(0, 0, 1), 3.2), False)
sketch3.addConstraint([
    Sketcher.Constraint("Coincident", 0, 3, -1, 1),
    Sketcher.Constraint("Diameter", 0, 6.35),
])
pocket2 = body.newObject("PartDesign::Pocket", "Pocket001")
pocket2.Profile = sketch3
pocket2.Length = 10

doc.recompute()
